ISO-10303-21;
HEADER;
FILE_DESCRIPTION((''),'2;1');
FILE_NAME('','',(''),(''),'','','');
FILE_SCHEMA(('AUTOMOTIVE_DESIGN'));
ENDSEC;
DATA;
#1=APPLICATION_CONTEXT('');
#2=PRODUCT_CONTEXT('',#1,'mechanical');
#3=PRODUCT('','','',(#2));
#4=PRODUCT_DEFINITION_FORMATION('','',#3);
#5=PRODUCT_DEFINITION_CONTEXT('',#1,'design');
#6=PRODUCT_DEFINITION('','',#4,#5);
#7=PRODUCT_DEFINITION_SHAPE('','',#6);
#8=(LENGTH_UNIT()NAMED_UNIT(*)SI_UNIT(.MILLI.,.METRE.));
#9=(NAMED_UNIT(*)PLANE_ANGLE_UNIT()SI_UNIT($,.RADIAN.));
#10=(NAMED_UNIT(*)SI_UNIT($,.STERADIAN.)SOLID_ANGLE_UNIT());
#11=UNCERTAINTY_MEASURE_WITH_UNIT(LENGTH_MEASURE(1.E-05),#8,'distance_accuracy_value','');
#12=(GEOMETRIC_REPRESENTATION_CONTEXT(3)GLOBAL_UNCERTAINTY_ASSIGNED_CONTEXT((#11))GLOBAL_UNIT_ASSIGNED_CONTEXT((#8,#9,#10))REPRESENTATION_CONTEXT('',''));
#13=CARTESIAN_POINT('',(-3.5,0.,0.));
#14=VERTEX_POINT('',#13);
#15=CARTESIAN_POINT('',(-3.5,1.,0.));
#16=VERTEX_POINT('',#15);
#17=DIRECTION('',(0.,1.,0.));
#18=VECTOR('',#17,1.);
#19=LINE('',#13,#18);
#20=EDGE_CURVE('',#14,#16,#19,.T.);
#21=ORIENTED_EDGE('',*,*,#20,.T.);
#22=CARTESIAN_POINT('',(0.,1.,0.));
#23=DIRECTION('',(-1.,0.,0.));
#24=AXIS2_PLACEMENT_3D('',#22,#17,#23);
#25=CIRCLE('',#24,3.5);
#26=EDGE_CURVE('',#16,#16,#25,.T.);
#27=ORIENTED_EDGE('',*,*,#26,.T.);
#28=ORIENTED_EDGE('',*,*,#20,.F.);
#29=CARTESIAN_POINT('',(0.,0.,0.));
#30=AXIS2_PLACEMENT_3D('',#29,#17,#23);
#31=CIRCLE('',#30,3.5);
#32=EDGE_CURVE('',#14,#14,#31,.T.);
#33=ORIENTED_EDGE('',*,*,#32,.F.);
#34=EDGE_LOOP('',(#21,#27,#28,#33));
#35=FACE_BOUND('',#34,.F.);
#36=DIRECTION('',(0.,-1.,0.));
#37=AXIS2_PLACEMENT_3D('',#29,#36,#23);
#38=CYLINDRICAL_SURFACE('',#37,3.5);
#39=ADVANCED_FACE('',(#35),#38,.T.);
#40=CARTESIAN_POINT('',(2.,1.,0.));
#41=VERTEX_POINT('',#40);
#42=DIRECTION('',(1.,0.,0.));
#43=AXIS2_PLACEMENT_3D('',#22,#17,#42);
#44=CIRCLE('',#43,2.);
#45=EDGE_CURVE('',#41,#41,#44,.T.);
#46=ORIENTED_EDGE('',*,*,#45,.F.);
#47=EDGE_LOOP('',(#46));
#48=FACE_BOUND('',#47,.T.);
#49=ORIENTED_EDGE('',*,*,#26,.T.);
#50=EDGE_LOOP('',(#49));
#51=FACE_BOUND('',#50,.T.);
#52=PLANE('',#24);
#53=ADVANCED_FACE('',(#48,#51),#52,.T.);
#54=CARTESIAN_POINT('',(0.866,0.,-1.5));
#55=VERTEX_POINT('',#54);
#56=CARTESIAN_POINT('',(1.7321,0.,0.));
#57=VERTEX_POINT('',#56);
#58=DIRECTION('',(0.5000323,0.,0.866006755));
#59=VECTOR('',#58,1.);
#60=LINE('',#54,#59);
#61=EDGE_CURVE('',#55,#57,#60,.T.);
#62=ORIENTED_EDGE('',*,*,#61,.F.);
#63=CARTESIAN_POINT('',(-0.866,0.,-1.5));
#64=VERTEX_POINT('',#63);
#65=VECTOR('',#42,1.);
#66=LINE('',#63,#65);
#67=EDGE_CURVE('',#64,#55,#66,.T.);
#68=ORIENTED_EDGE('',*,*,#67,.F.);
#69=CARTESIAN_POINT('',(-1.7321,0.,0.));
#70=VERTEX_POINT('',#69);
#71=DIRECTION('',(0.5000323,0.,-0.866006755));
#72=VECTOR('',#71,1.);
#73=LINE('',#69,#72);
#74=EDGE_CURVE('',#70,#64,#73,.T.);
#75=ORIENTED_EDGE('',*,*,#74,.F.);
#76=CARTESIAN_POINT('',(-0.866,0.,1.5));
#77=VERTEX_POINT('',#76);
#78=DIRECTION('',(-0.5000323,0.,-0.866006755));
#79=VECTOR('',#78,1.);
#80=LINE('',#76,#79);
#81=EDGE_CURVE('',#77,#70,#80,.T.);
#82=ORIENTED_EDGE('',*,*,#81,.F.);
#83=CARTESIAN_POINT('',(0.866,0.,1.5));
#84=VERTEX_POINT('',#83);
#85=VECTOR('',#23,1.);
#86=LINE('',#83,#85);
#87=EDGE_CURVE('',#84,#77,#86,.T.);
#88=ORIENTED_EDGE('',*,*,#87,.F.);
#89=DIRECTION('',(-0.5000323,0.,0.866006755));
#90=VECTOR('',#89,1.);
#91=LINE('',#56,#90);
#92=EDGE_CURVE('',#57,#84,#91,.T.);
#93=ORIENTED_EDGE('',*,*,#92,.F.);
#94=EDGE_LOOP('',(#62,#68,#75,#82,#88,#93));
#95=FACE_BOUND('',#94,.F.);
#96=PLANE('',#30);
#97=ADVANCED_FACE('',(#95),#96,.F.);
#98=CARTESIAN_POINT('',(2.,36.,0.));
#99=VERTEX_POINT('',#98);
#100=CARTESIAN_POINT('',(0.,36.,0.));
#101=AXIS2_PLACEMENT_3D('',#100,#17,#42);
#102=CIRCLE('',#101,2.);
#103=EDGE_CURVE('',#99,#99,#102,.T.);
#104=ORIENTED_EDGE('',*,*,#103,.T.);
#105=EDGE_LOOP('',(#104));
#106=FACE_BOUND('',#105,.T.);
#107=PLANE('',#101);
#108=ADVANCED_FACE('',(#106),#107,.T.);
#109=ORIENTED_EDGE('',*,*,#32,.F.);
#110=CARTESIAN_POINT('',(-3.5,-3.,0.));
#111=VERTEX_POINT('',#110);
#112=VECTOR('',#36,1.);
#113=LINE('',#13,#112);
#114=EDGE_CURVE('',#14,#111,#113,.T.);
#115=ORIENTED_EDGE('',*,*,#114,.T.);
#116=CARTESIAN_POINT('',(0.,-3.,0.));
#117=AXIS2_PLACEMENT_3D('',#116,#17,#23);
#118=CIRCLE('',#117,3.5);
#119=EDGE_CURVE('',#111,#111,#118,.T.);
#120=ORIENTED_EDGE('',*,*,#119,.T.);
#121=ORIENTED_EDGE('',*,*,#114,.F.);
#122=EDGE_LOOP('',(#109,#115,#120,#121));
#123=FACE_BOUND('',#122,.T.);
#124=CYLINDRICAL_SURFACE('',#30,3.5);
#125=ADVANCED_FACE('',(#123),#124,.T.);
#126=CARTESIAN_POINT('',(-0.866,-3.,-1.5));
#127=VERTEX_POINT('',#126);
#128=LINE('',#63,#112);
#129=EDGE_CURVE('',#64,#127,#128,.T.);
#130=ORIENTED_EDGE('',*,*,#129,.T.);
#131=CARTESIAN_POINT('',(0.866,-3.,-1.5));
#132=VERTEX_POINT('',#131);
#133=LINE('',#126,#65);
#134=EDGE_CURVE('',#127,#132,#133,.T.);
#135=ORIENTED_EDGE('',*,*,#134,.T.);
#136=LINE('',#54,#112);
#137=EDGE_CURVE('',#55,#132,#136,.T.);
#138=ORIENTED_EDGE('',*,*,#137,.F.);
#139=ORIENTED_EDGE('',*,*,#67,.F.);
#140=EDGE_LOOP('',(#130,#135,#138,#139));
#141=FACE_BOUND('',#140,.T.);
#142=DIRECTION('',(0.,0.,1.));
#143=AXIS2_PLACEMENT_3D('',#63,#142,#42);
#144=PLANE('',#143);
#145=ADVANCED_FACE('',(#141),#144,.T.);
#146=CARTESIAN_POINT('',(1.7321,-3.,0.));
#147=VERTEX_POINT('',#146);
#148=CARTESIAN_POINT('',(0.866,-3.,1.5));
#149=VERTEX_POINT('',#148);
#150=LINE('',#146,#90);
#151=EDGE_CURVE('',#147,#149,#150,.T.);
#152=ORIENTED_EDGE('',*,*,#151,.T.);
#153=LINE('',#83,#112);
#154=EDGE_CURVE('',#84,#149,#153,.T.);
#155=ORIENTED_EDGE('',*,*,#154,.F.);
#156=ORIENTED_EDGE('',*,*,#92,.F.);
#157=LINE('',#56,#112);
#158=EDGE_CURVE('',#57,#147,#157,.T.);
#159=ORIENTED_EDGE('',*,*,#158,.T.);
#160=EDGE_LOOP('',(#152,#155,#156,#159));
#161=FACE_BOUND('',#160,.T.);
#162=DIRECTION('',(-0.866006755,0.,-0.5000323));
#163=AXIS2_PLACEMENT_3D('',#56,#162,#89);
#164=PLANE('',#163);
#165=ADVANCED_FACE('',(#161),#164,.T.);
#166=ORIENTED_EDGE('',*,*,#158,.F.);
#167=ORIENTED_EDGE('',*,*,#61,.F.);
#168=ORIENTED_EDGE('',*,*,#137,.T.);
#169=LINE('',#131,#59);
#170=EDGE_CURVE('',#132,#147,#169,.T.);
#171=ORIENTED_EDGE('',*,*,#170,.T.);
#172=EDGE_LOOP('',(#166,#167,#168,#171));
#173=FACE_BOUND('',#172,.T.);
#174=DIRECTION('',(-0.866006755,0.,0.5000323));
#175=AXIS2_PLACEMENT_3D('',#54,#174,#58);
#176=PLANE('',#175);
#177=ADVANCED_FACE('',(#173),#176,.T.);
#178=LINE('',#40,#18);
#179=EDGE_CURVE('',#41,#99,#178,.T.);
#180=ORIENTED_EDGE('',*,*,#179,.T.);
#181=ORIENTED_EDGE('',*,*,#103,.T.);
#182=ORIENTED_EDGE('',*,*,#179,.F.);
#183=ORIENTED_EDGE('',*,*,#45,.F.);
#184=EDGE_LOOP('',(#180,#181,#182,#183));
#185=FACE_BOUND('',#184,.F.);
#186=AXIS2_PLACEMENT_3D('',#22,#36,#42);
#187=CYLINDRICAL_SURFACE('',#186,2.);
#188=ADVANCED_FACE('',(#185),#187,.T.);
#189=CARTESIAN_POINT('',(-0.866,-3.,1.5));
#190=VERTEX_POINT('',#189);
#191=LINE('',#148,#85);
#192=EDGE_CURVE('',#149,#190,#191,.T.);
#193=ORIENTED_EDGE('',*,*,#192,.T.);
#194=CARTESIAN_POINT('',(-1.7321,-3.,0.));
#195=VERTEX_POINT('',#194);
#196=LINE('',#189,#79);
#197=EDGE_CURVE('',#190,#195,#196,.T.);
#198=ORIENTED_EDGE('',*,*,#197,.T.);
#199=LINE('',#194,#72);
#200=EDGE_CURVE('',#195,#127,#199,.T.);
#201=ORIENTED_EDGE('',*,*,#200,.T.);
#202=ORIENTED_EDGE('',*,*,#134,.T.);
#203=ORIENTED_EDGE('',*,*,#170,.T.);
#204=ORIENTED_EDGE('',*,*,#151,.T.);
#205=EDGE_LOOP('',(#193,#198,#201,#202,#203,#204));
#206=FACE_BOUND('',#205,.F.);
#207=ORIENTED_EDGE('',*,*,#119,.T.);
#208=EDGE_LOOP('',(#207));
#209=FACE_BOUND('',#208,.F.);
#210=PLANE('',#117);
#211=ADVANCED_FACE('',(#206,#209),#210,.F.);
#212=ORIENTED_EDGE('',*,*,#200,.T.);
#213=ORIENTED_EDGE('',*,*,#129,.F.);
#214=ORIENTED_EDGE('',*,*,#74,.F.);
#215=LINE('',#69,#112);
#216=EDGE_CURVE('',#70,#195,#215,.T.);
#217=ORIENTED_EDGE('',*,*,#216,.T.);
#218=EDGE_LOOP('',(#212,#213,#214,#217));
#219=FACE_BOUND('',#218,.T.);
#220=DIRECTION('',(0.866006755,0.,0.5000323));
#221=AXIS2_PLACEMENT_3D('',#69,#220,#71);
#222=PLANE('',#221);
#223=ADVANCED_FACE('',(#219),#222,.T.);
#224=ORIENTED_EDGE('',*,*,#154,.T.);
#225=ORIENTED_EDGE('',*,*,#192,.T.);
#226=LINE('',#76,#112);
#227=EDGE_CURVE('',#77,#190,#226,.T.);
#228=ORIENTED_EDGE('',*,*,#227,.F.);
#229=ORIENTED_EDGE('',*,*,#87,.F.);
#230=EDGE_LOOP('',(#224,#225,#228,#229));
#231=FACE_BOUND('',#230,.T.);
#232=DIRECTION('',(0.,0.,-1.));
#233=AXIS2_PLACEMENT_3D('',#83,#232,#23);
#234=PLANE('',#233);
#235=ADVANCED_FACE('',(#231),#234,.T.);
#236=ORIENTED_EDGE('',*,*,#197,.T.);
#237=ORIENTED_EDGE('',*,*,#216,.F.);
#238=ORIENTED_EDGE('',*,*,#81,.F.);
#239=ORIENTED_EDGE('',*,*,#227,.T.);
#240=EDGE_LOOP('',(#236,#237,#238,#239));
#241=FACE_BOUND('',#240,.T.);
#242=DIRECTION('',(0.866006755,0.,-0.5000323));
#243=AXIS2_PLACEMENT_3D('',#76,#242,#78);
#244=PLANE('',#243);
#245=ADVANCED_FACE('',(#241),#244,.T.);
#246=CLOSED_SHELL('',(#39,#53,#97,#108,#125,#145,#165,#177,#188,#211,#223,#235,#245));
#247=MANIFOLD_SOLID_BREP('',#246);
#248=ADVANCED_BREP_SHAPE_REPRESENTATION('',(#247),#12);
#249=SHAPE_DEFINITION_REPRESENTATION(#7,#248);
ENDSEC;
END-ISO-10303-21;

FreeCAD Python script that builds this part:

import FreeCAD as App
import Part
import Sketcher
from FreeCAD import Vector
Q = App.Units.Quantity

doc = App.newDocument("Part")
body = doc.addObject("PartDesign::Body", "Body")

# Sketch on XZ plane
sketch1 = body.newObject("Sketcher::SketchObject", "Sketch")
sketch1.AttachmentSupport = (doc.getObject("XZ_Plane"), [""])
sketch1.MapMode = "FlatFace"
sketch1.addGeometry(Part.Circle(Vector(0, 0, 0), Vector(0, 0, 1), 3.5), False)
sketch1.addConstraint([
    Sketcher.Constraint("Coincident", 0, 3, -1, 1),
    Sketcher.Constraint("Diameter", 0, Q("7 mm")),
])
pad1 = body.newObject("PartDesign::Pad", "Pad")
pad1.Profile = sketch1
pad1.Length = 1
pad1.Reversed = True

# Sketch on XZ plane
sketch2 = body.newObject("Sketcher::SketchObject", "Sketch001")
sketch2.AttachmentSupport = (doc.getObject("XZ_Plane"), [""])
sketch2.MapMode = "FlatFace"
sketch2.addGeometry([
    Part.Circle(Vector(0, 0, 0), Vector(0, 0, 1), 3.5),  # 0
    Part.LineSegment(Vector(-0.9, 1.5, 0), Vector(-1.7, 0, 0)),  # 1
    Part.LineSegment(Vector(-1.7, 0, 0), Vector(-0.9, -1.5, 0)),  # 2
    Part.LineSegment(Vector(-0.9, -1.5, 0), Vector(0.9, -1.5, 0)),  # 3
    Part.LineSegment(Vector(0.9, -1.5, 0), Vector(1.7, 0, 0)),  # 4
    Part.LineSegment(Vector(1.7, 0, 0), Vector(0.9, 1.5, 0)),  # 5
    Part.LineSegment(Vector(0.9, 1.5, 0), Vector(-0.9, 1.5, 0)),  # 6
], False)
sketch2.addConstraint([
    Sketcher.Constraint("Coincident", 1, 2, 2, 1),
    Sketcher.Constraint("Coincident", 2, 2, 3, 1),
    Sketcher.Constraint("Coincident", 3, 2, 4, 1),
    Sketcher.Constraint("Coincident", 4, 2, 5, 1),
    Sketcher.Constraint("Coincident", 5, 2, 6, 1),
    Sketcher.Constraint("Coincident", 6, 2, 1, 1),
    Sketcher.Constraint("Horizontal", 3),
    Sketcher.Constraint("Horizontal", 6),
    Sketcher.Constraint("Coincident", 0, 3, -1, 1),
    Sketcher.Constraint("Symmetric", 1, 2, 4, 2, -1, 1),
    Sketcher.Constraint("Symmetric", 2, 2, 5, 2, -1, 1),
    Sketcher.Constraint("PointOnObject", 1, 2, -1),
    Sketcher.Constraint("Parallel", 1, 4),
    Sketcher.Constraint("Vertical", 3, 2, 5, 2),
    Sketcher.Constraint("Diameter", 0, Q("7 mm")),
    Sketcher.Constraint("DistanceY", 3, 2, 5, 2, Q("3 mm")),
    Sketcher.Constraint("DistanceX", 3, 1, 3, 2, Q("1.732 mm")),
    Sketcher.Constraint("Distance", 1, Q("1.732 mm")),
])
pad2 = body.newObject("PartDesign::Pad", "Pad001")
pad2.Profile = sketch2
pad2.Length = 3

# Sketch on XZ plane
sketch3 = body.newObject("Sketcher::SketchObject", "Sketch002")
sketch3.AttachmentSupport = (doc.getObject("XZ_Plane"), [""])
sketch3.MapMode = "FlatFace"
sketch3.AttachmentOffset = App.Placement(Vector(0, 0, -1), App.Rotation())
sketch3.addGeometry(Part.Circle(Vector(0, 0, 0), Vector(0, 0, 1), 2), False)
sketch3.addConstraint([
    Sketcher.Constraint("Coincident", 0, 3, -1, 1),
    Sketcher.Constraint("Diameter", 0, Q("4 mm")),
])
pad3 = body.newObject("PartDesign::Pad", "Pad002")
pad3.Profile = sketch3
pad3.Length = 35
pad3.Reversed = True

doc.recompute()
